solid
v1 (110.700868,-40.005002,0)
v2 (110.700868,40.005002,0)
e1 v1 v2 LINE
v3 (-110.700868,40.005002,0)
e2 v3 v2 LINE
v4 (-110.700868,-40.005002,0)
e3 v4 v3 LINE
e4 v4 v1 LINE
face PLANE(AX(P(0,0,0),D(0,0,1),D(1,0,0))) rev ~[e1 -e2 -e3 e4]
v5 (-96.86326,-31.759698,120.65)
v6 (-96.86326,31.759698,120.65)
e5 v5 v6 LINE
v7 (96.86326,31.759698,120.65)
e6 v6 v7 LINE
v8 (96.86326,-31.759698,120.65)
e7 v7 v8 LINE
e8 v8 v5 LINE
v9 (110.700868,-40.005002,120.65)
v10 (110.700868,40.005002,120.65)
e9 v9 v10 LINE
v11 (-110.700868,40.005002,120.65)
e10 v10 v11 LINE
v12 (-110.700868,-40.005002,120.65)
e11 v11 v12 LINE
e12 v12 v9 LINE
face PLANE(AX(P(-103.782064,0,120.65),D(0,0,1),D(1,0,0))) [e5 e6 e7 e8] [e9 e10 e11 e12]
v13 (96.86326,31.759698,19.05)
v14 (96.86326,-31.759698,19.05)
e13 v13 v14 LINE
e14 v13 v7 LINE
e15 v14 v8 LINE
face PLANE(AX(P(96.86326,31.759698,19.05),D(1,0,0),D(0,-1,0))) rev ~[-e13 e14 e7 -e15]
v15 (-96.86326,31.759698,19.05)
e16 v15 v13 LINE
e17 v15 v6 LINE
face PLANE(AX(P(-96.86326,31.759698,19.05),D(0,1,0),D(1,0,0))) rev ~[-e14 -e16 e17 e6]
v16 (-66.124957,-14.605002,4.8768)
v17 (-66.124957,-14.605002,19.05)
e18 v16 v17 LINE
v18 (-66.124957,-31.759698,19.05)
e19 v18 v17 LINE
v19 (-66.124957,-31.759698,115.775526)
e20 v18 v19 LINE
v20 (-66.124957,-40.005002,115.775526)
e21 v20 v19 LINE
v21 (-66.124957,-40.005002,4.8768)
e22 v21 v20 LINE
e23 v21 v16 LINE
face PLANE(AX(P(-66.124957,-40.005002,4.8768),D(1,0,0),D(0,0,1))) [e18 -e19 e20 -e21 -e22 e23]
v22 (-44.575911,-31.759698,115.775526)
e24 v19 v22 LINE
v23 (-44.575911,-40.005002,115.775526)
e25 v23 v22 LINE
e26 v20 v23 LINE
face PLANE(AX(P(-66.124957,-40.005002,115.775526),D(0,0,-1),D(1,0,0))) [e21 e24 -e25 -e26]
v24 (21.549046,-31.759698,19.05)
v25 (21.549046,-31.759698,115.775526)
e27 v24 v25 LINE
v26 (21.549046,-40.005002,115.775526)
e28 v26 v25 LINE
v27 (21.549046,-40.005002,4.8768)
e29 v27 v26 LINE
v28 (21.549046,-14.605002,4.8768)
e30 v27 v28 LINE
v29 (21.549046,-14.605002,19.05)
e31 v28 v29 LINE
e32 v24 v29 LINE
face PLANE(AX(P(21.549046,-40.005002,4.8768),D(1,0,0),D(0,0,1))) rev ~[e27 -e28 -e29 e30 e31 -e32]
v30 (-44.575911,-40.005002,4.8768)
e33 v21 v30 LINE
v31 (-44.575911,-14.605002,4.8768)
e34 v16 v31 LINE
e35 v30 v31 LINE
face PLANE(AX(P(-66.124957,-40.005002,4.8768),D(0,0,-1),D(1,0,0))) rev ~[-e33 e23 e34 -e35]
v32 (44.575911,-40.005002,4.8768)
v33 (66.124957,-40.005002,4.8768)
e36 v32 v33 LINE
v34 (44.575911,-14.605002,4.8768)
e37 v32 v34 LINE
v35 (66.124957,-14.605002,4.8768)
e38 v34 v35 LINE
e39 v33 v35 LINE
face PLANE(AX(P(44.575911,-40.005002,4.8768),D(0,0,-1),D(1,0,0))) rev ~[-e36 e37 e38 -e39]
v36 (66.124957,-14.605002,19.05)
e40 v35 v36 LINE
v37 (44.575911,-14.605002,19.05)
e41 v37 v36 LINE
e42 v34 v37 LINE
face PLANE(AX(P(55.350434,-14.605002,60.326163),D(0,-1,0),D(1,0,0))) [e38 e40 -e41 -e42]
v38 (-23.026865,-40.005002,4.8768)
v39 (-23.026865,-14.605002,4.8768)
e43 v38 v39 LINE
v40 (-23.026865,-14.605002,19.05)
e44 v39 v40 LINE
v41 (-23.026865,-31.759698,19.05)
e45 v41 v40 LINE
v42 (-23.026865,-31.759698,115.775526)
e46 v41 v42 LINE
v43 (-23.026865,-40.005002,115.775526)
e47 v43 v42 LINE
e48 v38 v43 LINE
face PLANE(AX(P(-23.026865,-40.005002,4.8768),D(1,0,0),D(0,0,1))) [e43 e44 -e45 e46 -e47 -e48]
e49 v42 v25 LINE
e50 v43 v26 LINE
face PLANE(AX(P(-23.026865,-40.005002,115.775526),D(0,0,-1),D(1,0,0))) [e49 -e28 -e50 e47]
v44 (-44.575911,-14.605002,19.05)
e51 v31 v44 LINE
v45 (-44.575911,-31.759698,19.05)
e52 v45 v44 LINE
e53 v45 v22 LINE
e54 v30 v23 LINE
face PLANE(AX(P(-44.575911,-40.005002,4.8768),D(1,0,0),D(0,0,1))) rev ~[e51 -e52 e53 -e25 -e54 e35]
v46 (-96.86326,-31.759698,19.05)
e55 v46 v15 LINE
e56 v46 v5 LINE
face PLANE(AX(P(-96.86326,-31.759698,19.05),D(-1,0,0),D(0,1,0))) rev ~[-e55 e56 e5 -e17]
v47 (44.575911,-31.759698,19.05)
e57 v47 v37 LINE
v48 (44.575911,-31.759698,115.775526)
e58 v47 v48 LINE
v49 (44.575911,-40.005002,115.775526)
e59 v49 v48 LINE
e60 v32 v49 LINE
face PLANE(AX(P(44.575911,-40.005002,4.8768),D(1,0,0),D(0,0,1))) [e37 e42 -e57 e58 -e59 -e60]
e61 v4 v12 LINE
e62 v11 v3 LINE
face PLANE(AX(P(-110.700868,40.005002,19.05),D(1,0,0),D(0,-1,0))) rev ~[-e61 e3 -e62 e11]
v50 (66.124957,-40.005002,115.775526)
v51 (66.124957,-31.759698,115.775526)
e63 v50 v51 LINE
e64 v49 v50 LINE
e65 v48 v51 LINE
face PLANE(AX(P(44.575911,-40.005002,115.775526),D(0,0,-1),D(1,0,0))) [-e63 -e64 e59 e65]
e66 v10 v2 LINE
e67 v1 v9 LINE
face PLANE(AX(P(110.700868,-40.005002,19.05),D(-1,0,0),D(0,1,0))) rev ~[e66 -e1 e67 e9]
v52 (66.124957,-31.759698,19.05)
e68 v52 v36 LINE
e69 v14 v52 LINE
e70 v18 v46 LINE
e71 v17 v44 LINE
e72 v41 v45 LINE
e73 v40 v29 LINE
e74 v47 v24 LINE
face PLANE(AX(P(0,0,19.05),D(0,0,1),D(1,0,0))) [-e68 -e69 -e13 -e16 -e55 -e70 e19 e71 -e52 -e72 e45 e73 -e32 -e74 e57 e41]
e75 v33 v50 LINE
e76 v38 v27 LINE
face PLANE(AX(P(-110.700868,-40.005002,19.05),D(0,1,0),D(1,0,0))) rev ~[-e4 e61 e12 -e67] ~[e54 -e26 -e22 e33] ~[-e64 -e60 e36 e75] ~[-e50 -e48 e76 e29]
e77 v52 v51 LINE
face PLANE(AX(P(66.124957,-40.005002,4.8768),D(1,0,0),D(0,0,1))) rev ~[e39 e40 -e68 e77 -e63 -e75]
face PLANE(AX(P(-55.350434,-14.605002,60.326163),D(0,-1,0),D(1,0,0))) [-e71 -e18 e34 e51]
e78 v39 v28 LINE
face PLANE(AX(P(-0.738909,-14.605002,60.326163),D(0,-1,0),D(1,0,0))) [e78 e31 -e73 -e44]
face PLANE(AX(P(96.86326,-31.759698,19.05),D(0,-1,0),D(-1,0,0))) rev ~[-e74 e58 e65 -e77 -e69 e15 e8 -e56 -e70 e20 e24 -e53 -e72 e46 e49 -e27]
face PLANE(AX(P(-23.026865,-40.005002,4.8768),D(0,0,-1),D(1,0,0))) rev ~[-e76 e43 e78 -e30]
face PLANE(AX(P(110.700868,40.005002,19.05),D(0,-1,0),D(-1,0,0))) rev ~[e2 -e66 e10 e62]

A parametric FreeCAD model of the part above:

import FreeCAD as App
import Part
import Sketcher
Q = App.Units.Quantity

doc = App.newDocument("Part")
body = doc.addObject("PartDesign::Body", "Body")

sketch1 = body.newObject("Sketcher::SketchObject", "Sketch")
sketch1.AttachmentSupport = (doc.getObject("XY_Plane"), [""])
sketch1.MapMode = "FlatFace"
sketch1.addGeometry([
    Part.LineSegment(App.Vector(-111, 40, 0), App.Vector(-111, -40, 0)),
    Part.LineSegment(App.Vector(-111, -40, 0), App.Vector(111, -40, 0)),
    Part.LineSegment(App.Vector(111, -40, 0), App.Vector(111, 40, 0)),
    Part.LineSegment(App.Vector(111, 40, 0), App.Vector(-111, 40, 0)),
], False)
sketch1.addConstraint([
    Sketcher.Constraint("Coincident", 0, 2, 1, 1),
    Sketcher.Constraint("Coincident", 1, 2, 2, 1),
    Sketcher.Constraint("Coincident", 2, 2, 3, 1),
    Sketcher.Constraint("Coincident", 3, 2, 0, 1),
    Sketcher.Constraint("Vertical", 0),
    Sketcher.Constraint("Horizontal", 1),
    Sketcher.Constraint("Vertical", 2),
    Sketcher.Constraint("Horizontal", 3),
    Sketcher.Constraint("Symmetric", 0, 2, 2, 2, -1, 1),
    Sketcher.Constraint("DistanceY", 0, 2, 0, 1, Q("3.1500002 in")),
    Sketcher.Constraint("DistanceX", 1, 1, 1, 2, Q("221.401736 mm")),
])
pad1 = body.newObject("PartDesign::Pad", "Pad")
pad1.Profile = sketch1
pad1.Length = Q("0.75 in")

sketch2 = body.newObject("Sketcher::SketchObject", "Sketch001")
sketch2.AttachmentSupport = (doc.getObject("XY_Plane"), [""])
sketch2.MapMode = "FlatFace"
sketch2.AttachmentOffset = App.Placement(App.Vector(0, 0, 0.75 * 25.4), App.Rotation())
sketch2.addGeometry([
    Part.LineSegment(App.Vector(-111, 40, 0), App.Vector(-111, -40, 0)),
    Part.LineSegment(App.Vector(-111, -40, 0), App.Vector(111, -40, 0)),
    Part.LineSegment(App.Vector(111, -40, 0), App.Vector(111, 40, 0)),
    Part.LineSegment(App.Vector(111, 40, 0), App.Vector(-111, 40, 0)),
    Part.LineSegment(App.Vector(-97, -32, 0), App.Vector(-97, 32, 0)),
    Part.LineSegment(App.Vector(-97, 32, 0), App.Vector(97, 32, 0)),
    Part.LineSegment(App.Vector(97, 32, 0), App.Vector(97, -32, 0)),
    Part.LineSegment(App.Vector(97, -32, 0), App.Vector(-97, -32, 0)),
], False)
sketch2.addConstraint([
    Sketcher.Constraint("Coincident", 0, 2, 1, 1),
    Sketcher.Constraint("Coincident", 1, 2, 2, 1),
    Sketcher.Constraint("Coincident", 2, 2, 3, 1),
    Sketcher.Constraint("Coincident", 3, 2, 0, 1),
    Sketcher.Constraint("Coincident", 4, 2, 5, 1),
    Sketcher.Constraint("Coincident", 5, 2, 6, 1),
    Sketcher.Constraint("Coincident", 6, 2, 7, 1),
    Sketcher.Constraint("Coincident", 7, 2, 4, 1),
    Sketcher.Constraint("Vertical", 0),
    Sketcher.Constraint("Horizontal", 1),
    Sketcher.Constraint("Vertical", 2),
    Sketcher.Constraint("Horizontal", 3),
    Sketcher.Constraint("Vertical", 4),
    Sketcher.Constraint("Horizontal", 5),
    Sketcher.Constraint("Vertical", 6),
    Sketcher.Constraint("Horizontal", 7),
    Sketcher.Constraint("Symmetric", 0, 2, 2, 2, -1, 1),
    Sketcher.Constraint("Symmetric", 4, 2, 6, 2, -1, 1),
    Sketcher.Constraint("DistanceY", 0, 2, 0, 1, Q("3.1500002 in")),
    Sketcher.Constraint("DistanceX", 5, 1, 5, 2, Q("193.726519 mm")),
    Sketcher.Constraint("DistanceY", 0, 2, 4, 2, Q("71.7647 mm")),
    Sketcher.Constraint("DistanceX", 1, 1, 1, 2, Q("221.401736 mm")),
])
pad2 = body.newObject("PartDesign::Pad", "Pad001")
pad2.Profile = sketch2
pad2.Length = Q("4 in")

sketch3 = body.newObject("Sketcher::SketchObject", "Sketch002")
sketch3.AttachmentSupport = (doc.getObject("XZ_Plane"), [""])
sketch3.MapMode = "FlatFace"
sketch3.AttachmentOffset = App.Placement(App.Vector(0, 0, 1.5750001 * 25.4), App.Rotation())
sketch3.addGeometry([
    Part.LineSegment(App.Vector(-66, 116, 0), App.Vector(-66, 5, 0)),
    Part.LineSegment(App.Vector(-66, 5, 0), App.Vector(-45, 5, 0)),
    Part.LineSegment(App.Vector(-45, 5, 0), App.Vector(-45, 116, 0)),
    Part.LineSegment(App.Vector(-45, 116, 0), App.Vector(-66, 116, 0)),
    Part.LineSegment(App.Vector(-23, 116, 0), App.Vector(-23, 5, 0)),
    Part.LineSegment(App.Vector(-23, 5, 0), App.Vector(22, 5, 0)),
    Part.LineSegment(App.Vector(22, 5, 0), App.Vector(22, 116, 0)),
    Part.LineSegment(App.Vector(22, 116, 0), App.Vector(-23, 116, 0)),
    Part.LineSegment(App.Vector(45, 116, 0), App.Vector(45, 5, 0)),
    Part.LineSegment(App.Vector(45, 5, 0), App.Vector(66, 5, 0)),
    Part.LineSegment(App.Vector(66, 5, 0), App.Vector(66, 116, 0)),
    Part.LineSegment(App.Vector(66, 116, 0), App.Vector(45, 116, 0)),
], False)
sketch3.addConstraint([
    Sketcher.Constraint("Coincident", 0, 2, 1, 1),
    Sketcher.Constraint("Coincident", 1, 2, 2, 1),
    Sketcher.Constraint("Coincident", 2, 2, 3, 1),
    Sketcher.Constraint("Coincident", 3, 2, 0, 1),
    Sketcher.Constraint("Coincident", 4, 2, 5, 1),
    Sketcher.Constraint("Coincident", 5, 2, 6, 1),
    Sketcher.Constraint("Coincident", 6, 2, 7, 1),
    Sketcher.Constraint("Coincident", 7, 2, 4, 1),
    Sketcher.Constraint("Coincident", 8, 2, 9, 1),
    Sketcher.Constraint("Coincident", 9, 2, 10, 1),
    Sketcher.Constraint("Coincident", 10, 2, 11, 1),
    Sketcher.Constraint("Coincident", 11, 2, 8, 1),
    Sketcher.Constraint("Vertical", 0),
    Sketcher.Constraint("Horizontal", 1),
    Sketcher.Constraint("Vertical", 2),
    Sketcher.Constraint("Horizontal", 3),
    Sketcher.Constraint("Vertical", 4),
    Sketcher.Constraint("Horizontal", 5),
    Sketcher.Constraint("Vertical", 6),
    Sketcher.Constraint("Horizontal", 7),
    Sketcher.Constraint("Vertical", 8),
    Sketcher.Constraint("Horizontal", 9),
    Sketcher.Constraint("Vertical", 10),
    Sketcher.Constraint("Horizontal", 11),
    Sketcher.Constraint("Symmetric", 1, 2, 8, 2, -2),
    Sketcher.Constraint("Symmetric", 3, 2, 10, 2, -2),
    Sketcher.Constraint("Horizontal", 1, 2, 4, 2),
    Sketcher.Constraint("Horizontal", 3, 2, 6, 2),
    Sketcher.Constraint("DistanceY", -1, 1, 0, 2, Q("0.192 in")),
    Sketcher.Constraint("DistanceX", 5, 1, 5, 2, Q("44.575911 mm")),
    Sketcher.Constraint("DistanceX", 1, 1, 1, 2, Q("21.549046 mm")),
    Sketcher.Constraint("DistanceY", 0, 2, 0, 1, Q("110.898726 mm")),
    Sketcher.Constraint("DistanceX", 1, 2, -1, 1, Q("44.575911 mm")),
    Sketcher.Constraint("DistanceX", 5, 2, 9, 2, Q("44.575911 mm")),
])
pocket1 = body.newObject("PartDesign::Pocket", "Pocket")
pocket1.Profile = sketch3
pocket1.Length = Q("1 in")

doc.recompute()
